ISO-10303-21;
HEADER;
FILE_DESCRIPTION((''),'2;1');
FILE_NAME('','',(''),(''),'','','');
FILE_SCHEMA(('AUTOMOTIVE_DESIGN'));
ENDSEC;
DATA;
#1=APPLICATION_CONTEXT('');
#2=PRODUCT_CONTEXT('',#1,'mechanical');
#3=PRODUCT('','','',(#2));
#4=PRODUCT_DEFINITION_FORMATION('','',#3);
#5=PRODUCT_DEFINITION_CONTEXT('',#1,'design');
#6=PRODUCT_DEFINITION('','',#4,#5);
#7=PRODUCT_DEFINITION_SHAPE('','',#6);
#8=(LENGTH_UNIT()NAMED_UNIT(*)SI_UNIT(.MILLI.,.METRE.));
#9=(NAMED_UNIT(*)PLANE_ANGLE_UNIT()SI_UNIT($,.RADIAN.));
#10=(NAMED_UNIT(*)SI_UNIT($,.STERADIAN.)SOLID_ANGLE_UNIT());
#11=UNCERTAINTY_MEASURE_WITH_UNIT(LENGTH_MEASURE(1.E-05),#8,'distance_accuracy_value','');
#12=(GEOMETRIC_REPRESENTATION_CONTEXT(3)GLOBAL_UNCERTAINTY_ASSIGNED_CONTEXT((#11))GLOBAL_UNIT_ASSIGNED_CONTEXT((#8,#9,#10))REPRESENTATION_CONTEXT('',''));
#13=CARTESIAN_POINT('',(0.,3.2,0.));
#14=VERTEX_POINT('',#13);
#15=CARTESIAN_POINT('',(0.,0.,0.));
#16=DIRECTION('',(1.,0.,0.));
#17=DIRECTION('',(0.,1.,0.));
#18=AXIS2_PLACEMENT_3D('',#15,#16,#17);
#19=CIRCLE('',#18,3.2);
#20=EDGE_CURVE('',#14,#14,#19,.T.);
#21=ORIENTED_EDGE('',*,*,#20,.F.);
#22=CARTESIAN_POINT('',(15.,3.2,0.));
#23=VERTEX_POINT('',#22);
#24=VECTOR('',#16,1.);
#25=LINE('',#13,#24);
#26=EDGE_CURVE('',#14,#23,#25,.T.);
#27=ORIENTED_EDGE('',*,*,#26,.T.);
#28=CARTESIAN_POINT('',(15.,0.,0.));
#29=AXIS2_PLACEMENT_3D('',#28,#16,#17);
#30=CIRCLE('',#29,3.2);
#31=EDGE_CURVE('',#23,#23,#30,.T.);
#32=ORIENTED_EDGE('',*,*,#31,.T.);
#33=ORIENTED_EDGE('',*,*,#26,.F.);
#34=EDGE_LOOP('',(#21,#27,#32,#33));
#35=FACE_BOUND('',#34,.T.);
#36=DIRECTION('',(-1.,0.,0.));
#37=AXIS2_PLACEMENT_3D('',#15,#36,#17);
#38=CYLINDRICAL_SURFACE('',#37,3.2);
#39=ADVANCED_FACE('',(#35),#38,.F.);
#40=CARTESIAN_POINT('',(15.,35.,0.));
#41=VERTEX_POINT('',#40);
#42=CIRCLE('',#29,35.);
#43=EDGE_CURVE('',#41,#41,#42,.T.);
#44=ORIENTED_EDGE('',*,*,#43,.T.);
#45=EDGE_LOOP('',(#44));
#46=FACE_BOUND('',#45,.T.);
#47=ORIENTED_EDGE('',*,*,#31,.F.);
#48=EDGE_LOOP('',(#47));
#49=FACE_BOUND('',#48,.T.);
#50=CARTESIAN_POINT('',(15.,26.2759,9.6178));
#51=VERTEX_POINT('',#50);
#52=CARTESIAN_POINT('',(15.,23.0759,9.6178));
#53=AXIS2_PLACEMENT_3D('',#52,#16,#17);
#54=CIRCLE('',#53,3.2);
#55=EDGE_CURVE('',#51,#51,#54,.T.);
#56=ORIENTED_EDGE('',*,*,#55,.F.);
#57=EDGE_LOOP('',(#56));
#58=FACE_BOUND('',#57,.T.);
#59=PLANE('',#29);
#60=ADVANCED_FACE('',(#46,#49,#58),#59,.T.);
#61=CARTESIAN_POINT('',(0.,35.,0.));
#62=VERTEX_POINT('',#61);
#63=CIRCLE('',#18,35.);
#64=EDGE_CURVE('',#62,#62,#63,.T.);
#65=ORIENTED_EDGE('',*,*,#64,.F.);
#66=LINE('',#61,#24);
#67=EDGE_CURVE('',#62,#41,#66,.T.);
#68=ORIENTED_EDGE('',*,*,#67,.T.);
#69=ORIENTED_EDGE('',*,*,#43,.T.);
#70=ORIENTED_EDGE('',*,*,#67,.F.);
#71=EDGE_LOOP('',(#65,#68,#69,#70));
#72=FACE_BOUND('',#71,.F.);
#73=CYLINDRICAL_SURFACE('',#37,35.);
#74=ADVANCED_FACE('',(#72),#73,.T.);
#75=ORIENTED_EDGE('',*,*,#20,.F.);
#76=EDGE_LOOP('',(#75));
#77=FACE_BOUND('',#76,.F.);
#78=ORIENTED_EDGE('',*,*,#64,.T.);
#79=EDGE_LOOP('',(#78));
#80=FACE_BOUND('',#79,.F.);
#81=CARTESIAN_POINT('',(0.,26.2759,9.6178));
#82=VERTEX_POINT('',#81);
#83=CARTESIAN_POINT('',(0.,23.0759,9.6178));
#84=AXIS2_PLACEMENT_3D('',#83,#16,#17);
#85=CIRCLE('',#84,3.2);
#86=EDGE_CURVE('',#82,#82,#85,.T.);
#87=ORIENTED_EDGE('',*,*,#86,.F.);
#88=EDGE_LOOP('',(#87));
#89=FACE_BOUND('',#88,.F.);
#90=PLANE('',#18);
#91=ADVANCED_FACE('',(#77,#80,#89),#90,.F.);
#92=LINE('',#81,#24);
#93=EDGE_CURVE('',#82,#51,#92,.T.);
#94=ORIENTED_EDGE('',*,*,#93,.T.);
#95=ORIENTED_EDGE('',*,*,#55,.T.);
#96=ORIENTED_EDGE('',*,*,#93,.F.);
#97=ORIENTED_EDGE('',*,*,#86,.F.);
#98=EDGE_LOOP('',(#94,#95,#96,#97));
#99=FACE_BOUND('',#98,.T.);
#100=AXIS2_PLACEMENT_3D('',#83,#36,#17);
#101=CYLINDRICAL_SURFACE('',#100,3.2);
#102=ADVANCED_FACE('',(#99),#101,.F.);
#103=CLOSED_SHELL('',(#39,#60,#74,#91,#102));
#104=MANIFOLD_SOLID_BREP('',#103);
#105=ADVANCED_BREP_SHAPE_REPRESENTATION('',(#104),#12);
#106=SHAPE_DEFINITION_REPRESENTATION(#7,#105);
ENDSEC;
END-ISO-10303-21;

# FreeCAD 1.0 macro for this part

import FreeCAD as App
import Part
import Sketcher
Q = App.Units.Quantity

doc = App.newDocument("Part")
body = doc.addObject("PartDesign::Body", "Body")

sketch1 = doc.addObject("Sketcher::SketchObject", "Sketch")
body.addObject(sketch1)
sketch1.AttachmentSupport = (doc.YZ_Plane, [""])
sketch1.MapMode = "FlatFace"
sketch1.addGeometry([
    Part.Circle(App.Vector(0, 0, 0), App.Vector(0, 0, 1), 35),
    Part.Circle(App.Vector(0, 0, 0), App.Vector(0, 0, 1), 3.2),
    Part.Circle(App.Vector(23.1, 9.6, 0), App.Vector(0, 0, 1), 3.2),
], False)
sketch1.addConstraint([
    Sketcher.Constraint("Coincident", 0, 3, -1, 1),
    Sketcher.Constraint("Coincident", 1, 3, -1, 1),
    Sketcher.Constraint("Equal", 1, 2),
    Sketcher.Constraint("Diameter", 0, Q("70 mm")),
    Sketcher.Constraint("Diameter", 1, Q("6.4 mm")),
    Sketcher.Constraint("DistanceX", -1, 1, 2, 3, Q("23.076 mm")),
    Sketcher.Constraint("DistanceY", -1, 1, 2, 3, Q("9.6178 mm")),
])
pad1 = doc.addObject("PartDesign::Pad", "Pad")
body.addObject(pad1)
pad1.Profile = sketch1
pad1.Length = 15

doc.recompute()
